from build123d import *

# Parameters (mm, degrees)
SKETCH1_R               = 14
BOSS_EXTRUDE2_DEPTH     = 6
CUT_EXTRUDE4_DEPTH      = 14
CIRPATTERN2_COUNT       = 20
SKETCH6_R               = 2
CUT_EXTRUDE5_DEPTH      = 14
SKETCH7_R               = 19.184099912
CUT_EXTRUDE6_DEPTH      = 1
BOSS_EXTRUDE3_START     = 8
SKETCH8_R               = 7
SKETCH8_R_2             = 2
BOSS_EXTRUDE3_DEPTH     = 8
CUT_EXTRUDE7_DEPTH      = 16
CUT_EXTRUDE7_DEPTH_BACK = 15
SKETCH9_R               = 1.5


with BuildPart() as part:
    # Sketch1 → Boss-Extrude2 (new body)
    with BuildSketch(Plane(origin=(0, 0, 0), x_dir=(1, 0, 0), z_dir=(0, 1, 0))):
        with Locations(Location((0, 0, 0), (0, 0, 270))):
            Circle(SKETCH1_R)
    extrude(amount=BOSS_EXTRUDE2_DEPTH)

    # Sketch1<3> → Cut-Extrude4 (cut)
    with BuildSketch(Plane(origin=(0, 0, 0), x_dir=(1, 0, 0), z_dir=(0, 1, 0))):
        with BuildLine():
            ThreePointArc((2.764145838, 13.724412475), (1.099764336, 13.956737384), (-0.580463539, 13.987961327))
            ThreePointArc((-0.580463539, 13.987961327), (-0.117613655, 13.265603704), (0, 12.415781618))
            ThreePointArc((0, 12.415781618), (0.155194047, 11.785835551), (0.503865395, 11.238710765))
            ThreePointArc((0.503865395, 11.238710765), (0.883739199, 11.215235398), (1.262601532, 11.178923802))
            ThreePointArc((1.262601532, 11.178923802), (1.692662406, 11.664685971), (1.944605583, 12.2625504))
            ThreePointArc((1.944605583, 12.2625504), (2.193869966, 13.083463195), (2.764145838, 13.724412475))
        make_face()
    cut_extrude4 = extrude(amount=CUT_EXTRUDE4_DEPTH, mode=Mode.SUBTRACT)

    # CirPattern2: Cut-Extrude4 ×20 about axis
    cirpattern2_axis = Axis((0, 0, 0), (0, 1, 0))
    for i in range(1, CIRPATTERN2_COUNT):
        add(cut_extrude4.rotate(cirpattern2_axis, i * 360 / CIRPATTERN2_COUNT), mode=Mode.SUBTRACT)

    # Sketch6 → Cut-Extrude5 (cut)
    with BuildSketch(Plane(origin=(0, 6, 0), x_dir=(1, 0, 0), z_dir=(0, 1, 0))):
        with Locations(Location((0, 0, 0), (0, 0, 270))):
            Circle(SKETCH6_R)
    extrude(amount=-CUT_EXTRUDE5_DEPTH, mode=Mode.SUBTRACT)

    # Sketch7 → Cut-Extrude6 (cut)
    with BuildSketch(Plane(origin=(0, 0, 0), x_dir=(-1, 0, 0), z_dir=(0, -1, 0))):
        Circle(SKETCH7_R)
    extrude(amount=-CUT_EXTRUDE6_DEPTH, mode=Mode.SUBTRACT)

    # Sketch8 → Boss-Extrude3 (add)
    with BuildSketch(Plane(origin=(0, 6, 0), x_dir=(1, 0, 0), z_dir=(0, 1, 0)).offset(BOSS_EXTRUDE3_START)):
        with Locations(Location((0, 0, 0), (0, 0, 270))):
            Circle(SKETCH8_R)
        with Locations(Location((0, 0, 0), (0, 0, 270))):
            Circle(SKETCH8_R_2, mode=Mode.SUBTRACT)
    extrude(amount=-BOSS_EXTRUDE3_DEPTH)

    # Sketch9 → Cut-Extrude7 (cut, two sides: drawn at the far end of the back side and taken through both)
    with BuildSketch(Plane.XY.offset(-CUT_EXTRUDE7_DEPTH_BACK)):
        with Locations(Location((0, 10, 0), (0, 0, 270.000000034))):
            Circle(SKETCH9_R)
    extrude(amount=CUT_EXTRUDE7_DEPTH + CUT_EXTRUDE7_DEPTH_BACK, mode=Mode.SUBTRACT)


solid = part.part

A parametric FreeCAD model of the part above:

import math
import FreeCAD as App
import Part
import Sketcher

V = App.Vector

doc = App.newDocument("Part")
params = doc.addObject("Spreadsheet::Sheet", "Params")
for row, (alias, value) in enumerate([
    ("sketch1_diameter", "28 mm"),
    ("pad1_length", "6 mm"),
    ("sketch2_radius", "14 mm"),
    ("sketch2_radius2", "2 mm"),
    ("sketch2_radius3", "11.249999 mm"),
    ("pocket1_length", "14 mm"),
    ("sketch3_diameter", "4 mm"),
    ("pocket2_length", "14 mm"),
    ("pocket3_length", "1 mm"),
    ("sketch5_diameter", "14 mm"),
    ("sketch5_diameter2", "4 mm"),
    ("pad2_length", "8 mm"),
    ("sketch6_diameter", "3 mm"),
], start=1):
    params.set(f"A{row}", alias)
    params.set(f"B{row}", "=" + value)
    params.setAlias(f"B{row}", alias)

body = doc.addObject("PartDesign::Body", "Body")

# Sketch on XZ plane
sketch1 = body.newObject("Sketcher::SketchObject", "Sketch")
sketch1.AttachmentSupport = (doc.getObject("XZ_Plane"), [""])
sketch1.MapMode = "FlatFace"
sketch1.addGeometry(Part.Circle(V(0, 0, 0), V(0, 0, 1), 14), False)
sketch1.addConstraint([
    Sketcher.Constraint("Coincident", 0, 3, -1, 1),
    Sketcher.Constraint("Diameter", 0, 28.0),
])
sketch1.setExpression("Constraints[1]", "Params.sketch1_diameter")
pad1 = body.newObject("PartDesign::Pad", "Pad")
pad1.Profile = sketch1
pad1.setExpression("Length", "Params.pad1_length")
pad1.Reversed = True

# Sketch on XZ plane
sketch2 = body.newObject("Sketcher::SketchObject", "Sketch001")
sketch2.AttachmentSupport = (doc.getObject("XZ_Plane"), [""])
sketch2.MapMode = "FlatFace"
sketch2.addGeometry([
    Part.ArcOfCircle(Part.Circle(V(0, 0, 0), V(0, 0, 1), 14), math.radians(-92.38), math.radians(-78.61)),  # 0
    Part.ArcOfCircle(Part.Circle(V(-2, -12.6, 0), V(0, 0, 1), 2), math.radians(-45), math.radians(5)),  # 1
    Part.ArcOfCircle(Part.Circle(V(2, -12.6, 0), V(0, 0, 1), 2), math.radians(138), math.radians(175)),  # 2
    Part.ArcOfCircle(Part.Circle(V(0, 0, 0), V(0, 0, 1), 11.2), math.radians(-87.43), math.radians(-83.56)),  # 3
    Part.ArcOfCircle(Part.Circle(V(0, -12.7, 0), V(0, 0, 1), 2), math.radians(14), math.radians(51)),  # 4
    Part.ArcOfCircle(Part.Circle(V(3.9, -12.1, 0), V(0, 0, 1), 2), math.radians(-175), math.radians(-126)),  # 5
], False)
sketch2.addConstraint([
    Sketcher.Constraint("Coincident", 0, 1, 1, 1),
    Sketcher.Constraint("Coincident", 1, 2, 2, 2),
    Sketcher.Constraint("Coincident", 2, 1, 3, 1),
    Sketcher.Constraint("Coincident", 3, 2, 4, 2),
    Sketcher.Constraint("Coincident", 4, 1, 5, 1),
    Sketcher.Constraint("Coincident", 5, 2, 0, 2),
    Sketcher.Constraint("Coincident", 0, 3, -1, 1),
    Sketcher.Constraint("Coincident", 3, 3, -1, 1),
    Sketcher.Constraint("Equal", 1, 2),
    Sketcher.Constraint("Equal", 2, 4),
    Sketcher.Constraint("Equal", 4, 5),
    Sketcher.Constraint("Symmetric", 1, 3, 2, 3, -2),
    Sketcher.Constraint("PointOnObject", 4, 3, -2),
    Sketcher.Constraint("Radius", 0, 14.0),
    Sketcher.Constraint("Radius", 1, 2.0),
    Sketcher.Constraint("Radius", 3, 11.249999),
    Sketcher.Constraint("DistanceY", 4, 3, -1, 1, 12.73),
    Sketcher.Constraint("DistanceX", 1, 3, -1, 1, 1.99382),
    Sketcher.Constraint("DistanceY", 1, 3, -1, 1, 12.572891),
    Sketcher.Constraint("DistanceY", 5, 3, -1, 1, 12.105441),
    Sketcher.Constraint("DistanceY", 4, 1, -1, 1, 12.26255),
])
sketch2.setExpression("Constraints[13]", "Params.sketch2_radius")
sketch2.setExpression("Constraints[14]", "Params.sketch2_radius2")
sketch2.setExpression("Constraints[15]", "Params.sketch2_radius3")
pocket1 = body.newObject("PartDesign::Pocket", "Pocket")
pocket1.Profile = sketch2
pocket1.setExpression("Length", "Params.pocket1_length")
doc.recompute()

polarpattern = body.newObject("PartDesign::PolarPattern", "PolarPattern")
polarpattern.Originals = [pocket1]
polarpattern.Axis = (doc.getObject("Y_Axis"), [""])
polarpattern.Angle = 360
polarpattern.Occurrences = 20
body.Tip = polarpattern

# Sketch on XZ plane
sketch3 = body.newObject("Sketcher::SketchObject", "Sketch002")
sketch3.AttachmentSupport = (doc.getObject("XZ_Plane"), [""])
sketch3.MapMode = "FlatFace"
sketch3.AttachmentOffset = App.Placement(V(0, 0, -6), App.Rotation())
sketch3.addGeometry(Part.Circle(V(0, 0, 0), V(0, 0, 1), 2), False)
sketch3.addConstraint([
    Sketcher.Constraint("Coincident", 0, 3, -1, 1),
    Sketcher.Constraint("Diameter", 0, 4.0),
])
sketch3.setExpression("Constraints[1]", "Params.sketch3_diameter")
pocket2 = body.newObject("PartDesign::Pocket", "Pocket001")
pocket2.Profile = sketch3
pocket2.setExpression("Length", "Params.pocket2_length")
pocket2.Reversed = True

# Sketch on XZ plane
sketch4 = body.newObject("Sketcher::SketchObject", "Sketch003")
sketch4.AttachmentSupport = (doc.getObject("XZ_Plane"), [""])
sketch4.MapMode = "FlatFace"
sketch4.addGeometry(Part.Circle(V(0, 0, 0), V(0, 0, 1), 19), False)
sketch4.addConstraint([
    Sketcher.Constraint("Coincident", 0, 3, -1, 1),
    Sketcher.Constraint("Diameter", 0, 38.3682),
])
pocket3 = body.newObject("PartDesign::Pocket", "Pocket002")
pocket3.Profile = sketch4
pocket3.setExpression("Length", "Params.pocket3_length")

# Sketch on XZ plane
sketch5 = body.newObject("Sketcher::SketchObject", "Sketch004")
sketch5.AttachmentSupport = (doc.getObject("XZ_Plane"), [""])
sketch5.MapMode = "FlatFace"
sketch5.AttachmentOffset = App.Placement(V(0, 0, -14), App.Rotation())
sketch5.addGeometry([
    Part.Circle(V(0, 0, 0), V(0, 0, 1), 7),
    Part.Circle(V(0, 0, 0), V(0, 0, 1), 2),
], False)
sketch5.addConstraint([
    Sketcher.Constraint("Coincident", 0, 3, -1, 1),
    Sketcher.Constraint("Coincident", 1, 3, -1, 1),
    Sketcher.Constraint("Diameter", 0, 14.0),
    Sketcher.Constraint("Diameter", 1, 4.0),
])
sketch5.setExpression("Constraints[2]", "Params.sketch5_diameter")
sketch5.setExpression("Constraints[3]", "Params.sketch5_diameter2")
pad2 = body.newObject("PartDesign::Pad", "Pad001")
pad2.Profile = sketch5
pad2.setExpression("Length", "Params.pad2_length")

# Sketch on XY plane
sketch6 = body.newObject("Sketcher::SketchObject", "Sketch005")
sketch6.AttachmentSupport = (doc.getObject("XY_Plane"), [""])
sketch6.MapMode = "FlatFace"
sketch6.addGeometry(Part.Circle(V(0, 10, 0), V(0, 0, 1), 1.5), False)
sketch6.addConstraint([
    Sketcher.Constraint("PointOnObject", 0, 3, -2),
    Sketcher.Constraint("Diameter", 0, 3.0),
    Sketcher.Constraint("DistanceY", -1, 1, 0, 3, 10.0),
])
sketch6.setExpression("Constraints[1]", "Params.sketch6_diameter")
pocket4 = body.newObject("PartDesign::Pocket", "Pocket003")
pocket4.Profile = sketch6
pocket4.Type = "ThroughAll"
pocket4.Midplane = True

doc.recompute()
